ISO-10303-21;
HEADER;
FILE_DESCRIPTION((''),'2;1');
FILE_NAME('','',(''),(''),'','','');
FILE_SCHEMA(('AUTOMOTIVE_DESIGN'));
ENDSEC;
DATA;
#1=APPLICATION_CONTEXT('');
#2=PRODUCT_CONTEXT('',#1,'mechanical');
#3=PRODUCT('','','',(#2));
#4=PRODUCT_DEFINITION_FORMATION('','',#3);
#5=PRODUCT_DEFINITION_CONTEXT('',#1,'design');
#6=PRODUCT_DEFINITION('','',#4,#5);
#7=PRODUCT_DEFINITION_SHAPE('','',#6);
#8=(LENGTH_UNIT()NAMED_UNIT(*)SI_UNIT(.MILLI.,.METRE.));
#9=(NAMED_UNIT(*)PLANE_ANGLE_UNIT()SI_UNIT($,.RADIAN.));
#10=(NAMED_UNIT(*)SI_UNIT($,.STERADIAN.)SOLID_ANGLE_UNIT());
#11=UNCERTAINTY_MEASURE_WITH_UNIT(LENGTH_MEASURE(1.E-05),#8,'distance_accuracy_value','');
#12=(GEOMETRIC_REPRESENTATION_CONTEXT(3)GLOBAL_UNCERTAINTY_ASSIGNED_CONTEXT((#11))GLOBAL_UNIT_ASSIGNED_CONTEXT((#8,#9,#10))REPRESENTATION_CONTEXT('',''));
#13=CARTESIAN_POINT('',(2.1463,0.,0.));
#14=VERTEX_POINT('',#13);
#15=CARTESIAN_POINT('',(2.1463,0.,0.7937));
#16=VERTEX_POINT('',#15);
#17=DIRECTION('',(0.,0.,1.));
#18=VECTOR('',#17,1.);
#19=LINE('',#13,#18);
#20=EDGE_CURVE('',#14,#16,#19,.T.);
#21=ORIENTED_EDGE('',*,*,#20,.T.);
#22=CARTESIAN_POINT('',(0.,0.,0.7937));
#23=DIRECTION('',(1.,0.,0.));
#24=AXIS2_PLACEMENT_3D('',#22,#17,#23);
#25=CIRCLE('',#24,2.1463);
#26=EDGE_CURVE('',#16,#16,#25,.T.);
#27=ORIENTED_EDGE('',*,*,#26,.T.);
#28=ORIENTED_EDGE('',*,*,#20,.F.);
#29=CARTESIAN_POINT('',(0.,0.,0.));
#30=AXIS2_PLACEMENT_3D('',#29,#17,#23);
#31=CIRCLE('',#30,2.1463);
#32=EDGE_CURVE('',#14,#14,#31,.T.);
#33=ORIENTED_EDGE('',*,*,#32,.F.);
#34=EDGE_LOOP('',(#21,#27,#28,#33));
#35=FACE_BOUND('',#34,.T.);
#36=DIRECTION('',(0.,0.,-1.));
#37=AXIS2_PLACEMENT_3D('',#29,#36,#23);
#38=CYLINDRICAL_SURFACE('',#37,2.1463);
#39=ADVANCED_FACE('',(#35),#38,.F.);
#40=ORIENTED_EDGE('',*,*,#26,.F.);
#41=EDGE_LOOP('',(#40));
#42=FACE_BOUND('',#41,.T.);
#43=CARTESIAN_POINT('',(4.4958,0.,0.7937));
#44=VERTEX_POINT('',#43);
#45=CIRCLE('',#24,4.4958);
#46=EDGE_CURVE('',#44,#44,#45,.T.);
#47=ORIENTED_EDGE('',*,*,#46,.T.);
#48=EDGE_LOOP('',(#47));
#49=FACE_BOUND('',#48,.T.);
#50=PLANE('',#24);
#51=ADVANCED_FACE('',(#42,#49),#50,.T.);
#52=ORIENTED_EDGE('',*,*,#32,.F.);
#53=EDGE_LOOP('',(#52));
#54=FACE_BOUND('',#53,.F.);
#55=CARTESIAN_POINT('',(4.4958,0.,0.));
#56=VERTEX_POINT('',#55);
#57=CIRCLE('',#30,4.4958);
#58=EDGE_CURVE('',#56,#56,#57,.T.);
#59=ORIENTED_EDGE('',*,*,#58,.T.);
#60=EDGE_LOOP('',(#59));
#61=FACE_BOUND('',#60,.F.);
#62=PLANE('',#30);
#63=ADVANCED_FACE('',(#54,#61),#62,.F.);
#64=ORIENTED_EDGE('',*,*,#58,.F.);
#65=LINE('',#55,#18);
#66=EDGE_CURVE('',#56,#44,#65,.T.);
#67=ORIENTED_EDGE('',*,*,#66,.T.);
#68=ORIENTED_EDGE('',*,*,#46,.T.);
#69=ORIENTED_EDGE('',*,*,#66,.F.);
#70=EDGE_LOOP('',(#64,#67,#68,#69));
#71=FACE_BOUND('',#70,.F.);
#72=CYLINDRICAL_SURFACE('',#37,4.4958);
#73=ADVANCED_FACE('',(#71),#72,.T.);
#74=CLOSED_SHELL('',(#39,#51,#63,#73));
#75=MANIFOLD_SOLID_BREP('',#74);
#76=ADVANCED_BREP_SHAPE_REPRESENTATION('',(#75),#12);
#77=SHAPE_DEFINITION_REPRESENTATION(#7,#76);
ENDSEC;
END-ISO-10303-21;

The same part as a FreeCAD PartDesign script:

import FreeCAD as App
import Part
import Sketcher
from FreeCAD import Vector
Q = App.Units.Quantity

doc = App.newDocument("Part")
body = doc.addObject("PartDesign::Body", "Body")

# Sketch on XY plane
sketch1 = body.newObject("Sketcher::SketchObject", "Sketch")
sketch1.AttachmentSupport = (doc.getObject("XY_Plane"), [""])
sketch1.MapMode = "FlatFace"
sketch1.addGeometry(Part.Circle(Vector(0, 0, 0), Vector(0, 0, 1), 4.4958), False)
sketch1.addGeometry(Part.Circle(Vector(0, 0, 0), Vector(0, 0, 1), 2.1463), False)
sketch1.addConstraint(Sketcher.Constraint("Coincident", 0, 3, -1, 1))
sketch1.addConstraint(Sketcher.Constraint("Coincident", 1, 3, -1, 1))
sketch1.addConstraint(Sketcher.Constraint("Diameter", 0, Q("0.354 in")))
sketch1.addConstraint(Sketcher.Constraint("Diameter", 1, Q("0.169 in")))
pad1 = body.newObject("PartDesign::Pad", "Pad")
pad1.Profile = sketch1
pad1.Length = Q("0.031248 in")

doc.recompute()
